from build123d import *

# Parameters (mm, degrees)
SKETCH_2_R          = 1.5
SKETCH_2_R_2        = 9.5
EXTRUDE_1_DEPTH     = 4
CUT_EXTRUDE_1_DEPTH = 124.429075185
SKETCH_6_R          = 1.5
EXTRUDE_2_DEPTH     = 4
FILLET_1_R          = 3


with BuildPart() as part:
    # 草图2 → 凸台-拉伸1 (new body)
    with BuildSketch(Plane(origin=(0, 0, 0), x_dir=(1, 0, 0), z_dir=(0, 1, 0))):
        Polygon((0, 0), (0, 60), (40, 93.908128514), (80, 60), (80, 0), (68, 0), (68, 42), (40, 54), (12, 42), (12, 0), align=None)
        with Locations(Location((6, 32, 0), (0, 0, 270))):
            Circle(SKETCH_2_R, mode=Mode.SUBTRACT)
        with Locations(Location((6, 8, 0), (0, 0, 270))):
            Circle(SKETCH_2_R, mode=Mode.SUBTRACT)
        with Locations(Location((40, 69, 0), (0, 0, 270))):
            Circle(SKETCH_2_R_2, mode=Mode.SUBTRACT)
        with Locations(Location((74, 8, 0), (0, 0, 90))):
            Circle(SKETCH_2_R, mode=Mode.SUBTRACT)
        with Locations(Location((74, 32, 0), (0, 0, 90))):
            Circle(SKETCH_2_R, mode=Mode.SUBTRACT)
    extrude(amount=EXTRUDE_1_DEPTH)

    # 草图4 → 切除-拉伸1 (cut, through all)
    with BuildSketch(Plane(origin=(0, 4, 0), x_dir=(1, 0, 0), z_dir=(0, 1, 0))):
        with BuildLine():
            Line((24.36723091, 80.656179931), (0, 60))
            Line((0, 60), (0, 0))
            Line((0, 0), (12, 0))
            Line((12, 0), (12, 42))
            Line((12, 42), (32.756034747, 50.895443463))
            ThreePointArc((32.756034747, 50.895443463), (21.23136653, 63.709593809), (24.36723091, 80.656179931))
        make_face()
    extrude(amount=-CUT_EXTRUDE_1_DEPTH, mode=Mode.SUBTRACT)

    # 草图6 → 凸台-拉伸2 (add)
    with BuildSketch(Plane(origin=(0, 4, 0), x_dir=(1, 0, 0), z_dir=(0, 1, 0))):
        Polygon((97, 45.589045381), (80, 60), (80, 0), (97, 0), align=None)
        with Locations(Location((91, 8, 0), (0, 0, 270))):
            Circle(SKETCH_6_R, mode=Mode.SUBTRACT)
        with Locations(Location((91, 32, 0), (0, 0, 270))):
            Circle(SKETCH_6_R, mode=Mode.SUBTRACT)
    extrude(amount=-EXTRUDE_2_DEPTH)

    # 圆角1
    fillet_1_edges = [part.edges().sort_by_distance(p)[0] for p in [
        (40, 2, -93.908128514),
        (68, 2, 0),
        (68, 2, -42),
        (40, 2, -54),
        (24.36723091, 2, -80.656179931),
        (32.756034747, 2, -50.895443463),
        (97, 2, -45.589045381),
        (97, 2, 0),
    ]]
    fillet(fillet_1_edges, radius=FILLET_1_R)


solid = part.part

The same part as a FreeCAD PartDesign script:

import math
import FreeCAD as App
import Part
import Sketcher
from FreeCAD import Vector
Q = App.Units.Quantity


def edges_at(feature, points):
    """Names of the edges that pass closest to the given points."""
    edges = feature.Shape.Edges
    near = lambda p: min(range(len(edges)), key=lambda i: edges[i].distToShape(Part.Vertex(*p))[0])
    return sorted({f"Edge{near(p) + 1}" for p in points})


def add_polygon(sketch, points):
    """Adds a closed chain of lines whose ends are joined by coincident constraints."""
    first, n = sketch.GeometryCount, len(points)
    for a, b in zip(points, points[1:] + points[:1]):
        sketch.addGeometry(Part.LineSegment(App.Vector(*a, 0), App.Vector(*b, 0)), False)
    for i in range(n):
        sketch.addConstraint(Sketcher.Constraint("Coincident", first + i, 2, first + (i + 1) % n, 1))

doc = App.newDocument("Part")
body = doc.addObject("PartDesign::Body", "Body")

# Sketch on XZ plane
sketch1 = body.newObject("Sketcher::SketchObject", "Sketch")
sketch1.AttachmentSupport = (doc.getObject("XZ_Plane"), [""])
sketch1.MapMode = "FlatFace"
add_polygon(sketch1, [(0, -60), (0, 0), (12, 0), (12, -42), (40, -54), (68, -42), (68, 0), (80, 0), (80, -60), (40, -93.908129)])  # lines 0-9
sketch1.addGeometry(Part.Circle(Vector(74, -8, 0), Vector(0, 0, 1), 1.5), False)  # 10
sketch1.addGeometry(Part.Circle(Vector(74, -32, 0), Vector(0, 0, 1), 1.5), False)  # 11
sketch1.addGeometry(Part.Circle(Vector(6, -8, 0), Vector(0, 0, 1), 1.5), False)  # 12
sketch1.addGeometry(Part.Circle(Vector(6, -32, 0), Vector(0, 0, 1), 1.5), False)  # 13
sketch1.addGeometry(Part.Circle(Vector(40, -69, 0), Vector(0, 0, 1), 9.5), False)  # 14
sketch1.addConstraint([
    Sketcher.Constraint("Vertical", 0),
    Sketcher.Constraint("Horizontal", 1),
    Sketcher.Constraint("Vertical", 2),
    Sketcher.Constraint("Vertical", 5),
    Sketcher.Constraint("Horizontal", 6),
    Sketcher.Constraint("Vertical", 7),
    Sketcher.Constraint("Coincident", 0, 2, -1, 1),
    Sketcher.Constraint("Equal", 10, 11),
    Sketcher.Constraint("Equal", 11, 12),
    Sketcher.Constraint("Equal", 12, 13),
    Sketcher.Constraint("PointOnObject", 5, 2, -1),
    Sketcher.Constraint("Horizontal", 10, 3, 12, 3),
    Sketcher.Constraint("Horizontal", 11, 3, 13, 3),
    Sketcher.Constraint("Horizontal", 2, 2, 4, 2),
    Sketcher.Constraint("Horizontal", 7, 2, 9, 2),
    Sketcher.Constraint("Vertical", 10, 3, 11, 3),
    Sketcher.Constraint("Vertical", 12, 3, 13, 3),
    Sketcher.Constraint("Vertical", 14, 3, 3, 2),
    Sketcher.Constraint("Vertical", 3, 2, 8, 2),
    Sketcher.Constraint("Equal", 1, 6),
    Sketcher.Constraint("Equal", 3, 4),
    Sketcher.Constraint("Diameter", 10, Q("3 mm")),
    Sketcher.Constraint("Diameter", 14, Q("19 mm")),
    Sketcher.Constraint("DistanceX", 1, 1, 1, 2, Q("12 mm")),
    Sketcher.Constraint("DistanceY", 0, 1, 0, 2, Q("60 mm")),
    Sketcher.Constraint("DistanceY", 2, 2, 2, 1, Q("42 mm")),
    Sketcher.Constraint("DistanceX", -1, 1, 10, 3, Q("74 mm")),
    Sketcher.Constraint("DistanceY", 10, 3, -1, 1, Q("8 mm")),
    Sketcher.Constraint("DistanceY", 11, 3, -1, 1, Q("32 mm")),
    Sketcher.Constraint("DistanceX", -1, 1, 12, 3, Q("6 mm")),
    Sketcher.Constraint("DistanceX", -1, 1, 14, 3, Q("40 mm")),
    Sketcher.Constraint("DistanceY", 14, 3, -1, 1, Q("69 mm")),
    Sketcher.Constraint("DistanceY", 3, 2, -1, 1, Q("54 mm")),
    Sketcher.Constraint("DistanceY", 8, 2, -1, 1, Q("93.908129 mm")),
])
pad1 = body.newObject("PartDesign::Pad", "Pad")
pad1.Profile = sketch1
pad1.Length = 4
pad1.Reversed = True

# Sketch on XZ plane
sketch2 = body.newObject("Sketcher::SketchObject", "Sketch001")
sketch2.AttachmentSupport = (doc.getObject("XZ_Plane"), [""])
sketch2.MapMode = "FlatFace"
sketch2.AttachmentOffset = App.Placement(Vector(0, 0, -4), App.Rotation())
sketch2.addGeometry([
    Part.LineSegment(Vector(24.367231, -80.65618, 0), Vector(0, -60, 0)),  # 0
    Part.LineSegment(Vector(0, -60, 0), Vector(0, 0, 0)),  # 1
    Part.LineSegment(Vector(0, 0, 0), Vector(12, 0, 0)),  # 2
    Part.LineSegment(Vector(12, 0, 0), Vector(12, -42, 0)),  # 3
    Part.LineSegment(Vector(12, -42, 0), Vector(32.756035, -50.895443, 0)),  # 4
    Part.ArcOfCircle(Part.Circle(Vector(40, -69, 0), Vector(0, 0, 1), 19.5), math.radians(111.807255), math.radians(216.709124)),  # 5
], False)
sketch2.addConstraint([
    Sketcher.Constraint("Coincident", 0, 2, 1, 1),
    Sketcher.Constraint("Coincident", 1, 2, 2, 1),
    Sketcher.Constraint("Coincident", 2, 2, 3, 1),
    Sketcher.Constraint("Coincident", 3, 2, 4, 1),
    Sketcher.Constraint("Coincident", 4, 2, 5, 1),
    Sketcher.Constraint("Coincident", 5, 2, 0, 1),
    Sketcher.Constraint("Vertical", 1),
    Sketcher.Constraint("Horizontal", 2),
    Sketcher.Constraint("Vertical", 3),
    Sketcher.Constraint("Coincident", 1, 2, -1, 1),
    Sketcher.Constraint("Radius", 5, Q("19.5 mm")),
    Sketcher.Constraint("DistanceX", 2, 1, 2, 2, Q("12 mm")),
    Sketcher.Constraint("DistanceY", 1, 1, 1, 2, Q("60 mm")),
    Sketcher.Constraint("DistanceY", 3, 2, 3, 1, Q("42 mm")),
    Sketcher.Constraint("DistanceX", -1, 1, 5, 3, Q("40 mm")),
    Sketcher.Constraint("DistanceY", 5, 3, -1, 1, Q("69 mm")),
    Sketcher.Constraint("DistanceX", -1, 1, 5, 2, Q("24.367231 mm")),
    Sketcher.Constraint("Distance", 4, Q("22.581893 mm")),
])
pocket1 = body.newObject("PartDesign::Pocket", "Pocket")
pocket1.Profile = sketch2
pocket1.Type = "ThroughAll"
pocket1.Reversed = True

# Sketch on XZ plane
sketch3 = body.newObject("Sketcher::SketchObject", "Sketch002")
sketch3.AttachmentSupport = (doc.getObject("XZ_Plane"), [""])
sketch3.MapMode = "FlatFace"
sketch3.AttachmentOffset = App.Placement(Vector(0, 0, -4), App.Rotation())
add_polygon(sketch3, [(97, -45.589045), (80, -60), (80, 0), (97, 0)])  # lines 0-3
sketch3.addGeometry(Part.Circle(Vector(91, -8, 0), Vector(0, 0, 1), 1.5), False)  # 4
sketch3.addGeometry(Part.Circle(Vector(91, -32, 0), Vector(0, 0, 1), 1.5), False)  # 5
sketch3.addConstraint([
    Sketcher.Constraint("Vertical", 1),
    Sketcher.Constraint("Horizontal", 2),
    Sketcher.Constraint("Vertical", 3),
    Sketcher.Constraint("Equal", 4, 5),
    Sketcher.Constraint("PointOnObject", 1, 2, -1),
    Sketcher.Constraint("Vertical", 4, 3, 5, 3),
    Sketcher.Constraint("Diameter", 4, Q("3 mm")),
    Sketcher.Constraint("DistanceX", 2, 1, 2, 2, Q("17 mm")),
    Sketcher.Constraint("DistanceY", 1, 1, 1, 2, Q("60 mm")),
    Sketcher.Constraint("DistanceX", -1, 1, 4, 3, Q("91 mm")),
    Sketcher.Constraint("DistanceY", 4, 3, -1, 1, Q("8 mm")),
    Sketcher.Constraint("DistanceY", 5, 3, -1, 1, Q("32 mm")),
    Sketcher.Constraint("DistanceX", -1, 1, 0, 2, Q("80 mm")),
    Sketcher.Constraint("Distance", 0, Q("22.28622 mm")),
])
pad2 = body.newObject("PartDesign::Pad", "Pad001")
pad2.Profile = sketch3
pad2.Length = 4
doc.recompute()

fillet = body.newObject("PartDesign::Fillet", "Fillet")
fillet.Base = (pad2, edges_at(pad2, [
    (40, 2, -93.908),
    (68, 2, 0),
    (68, 2, -42),
    (40, 2, -54),
    (24.367, 2, -80.656),
    (32.756, 2, -50.895),
    (97, 2, -45.589),
    (97, 2, 0),
]))
fillet.Radius = 3

doc.recompute()
